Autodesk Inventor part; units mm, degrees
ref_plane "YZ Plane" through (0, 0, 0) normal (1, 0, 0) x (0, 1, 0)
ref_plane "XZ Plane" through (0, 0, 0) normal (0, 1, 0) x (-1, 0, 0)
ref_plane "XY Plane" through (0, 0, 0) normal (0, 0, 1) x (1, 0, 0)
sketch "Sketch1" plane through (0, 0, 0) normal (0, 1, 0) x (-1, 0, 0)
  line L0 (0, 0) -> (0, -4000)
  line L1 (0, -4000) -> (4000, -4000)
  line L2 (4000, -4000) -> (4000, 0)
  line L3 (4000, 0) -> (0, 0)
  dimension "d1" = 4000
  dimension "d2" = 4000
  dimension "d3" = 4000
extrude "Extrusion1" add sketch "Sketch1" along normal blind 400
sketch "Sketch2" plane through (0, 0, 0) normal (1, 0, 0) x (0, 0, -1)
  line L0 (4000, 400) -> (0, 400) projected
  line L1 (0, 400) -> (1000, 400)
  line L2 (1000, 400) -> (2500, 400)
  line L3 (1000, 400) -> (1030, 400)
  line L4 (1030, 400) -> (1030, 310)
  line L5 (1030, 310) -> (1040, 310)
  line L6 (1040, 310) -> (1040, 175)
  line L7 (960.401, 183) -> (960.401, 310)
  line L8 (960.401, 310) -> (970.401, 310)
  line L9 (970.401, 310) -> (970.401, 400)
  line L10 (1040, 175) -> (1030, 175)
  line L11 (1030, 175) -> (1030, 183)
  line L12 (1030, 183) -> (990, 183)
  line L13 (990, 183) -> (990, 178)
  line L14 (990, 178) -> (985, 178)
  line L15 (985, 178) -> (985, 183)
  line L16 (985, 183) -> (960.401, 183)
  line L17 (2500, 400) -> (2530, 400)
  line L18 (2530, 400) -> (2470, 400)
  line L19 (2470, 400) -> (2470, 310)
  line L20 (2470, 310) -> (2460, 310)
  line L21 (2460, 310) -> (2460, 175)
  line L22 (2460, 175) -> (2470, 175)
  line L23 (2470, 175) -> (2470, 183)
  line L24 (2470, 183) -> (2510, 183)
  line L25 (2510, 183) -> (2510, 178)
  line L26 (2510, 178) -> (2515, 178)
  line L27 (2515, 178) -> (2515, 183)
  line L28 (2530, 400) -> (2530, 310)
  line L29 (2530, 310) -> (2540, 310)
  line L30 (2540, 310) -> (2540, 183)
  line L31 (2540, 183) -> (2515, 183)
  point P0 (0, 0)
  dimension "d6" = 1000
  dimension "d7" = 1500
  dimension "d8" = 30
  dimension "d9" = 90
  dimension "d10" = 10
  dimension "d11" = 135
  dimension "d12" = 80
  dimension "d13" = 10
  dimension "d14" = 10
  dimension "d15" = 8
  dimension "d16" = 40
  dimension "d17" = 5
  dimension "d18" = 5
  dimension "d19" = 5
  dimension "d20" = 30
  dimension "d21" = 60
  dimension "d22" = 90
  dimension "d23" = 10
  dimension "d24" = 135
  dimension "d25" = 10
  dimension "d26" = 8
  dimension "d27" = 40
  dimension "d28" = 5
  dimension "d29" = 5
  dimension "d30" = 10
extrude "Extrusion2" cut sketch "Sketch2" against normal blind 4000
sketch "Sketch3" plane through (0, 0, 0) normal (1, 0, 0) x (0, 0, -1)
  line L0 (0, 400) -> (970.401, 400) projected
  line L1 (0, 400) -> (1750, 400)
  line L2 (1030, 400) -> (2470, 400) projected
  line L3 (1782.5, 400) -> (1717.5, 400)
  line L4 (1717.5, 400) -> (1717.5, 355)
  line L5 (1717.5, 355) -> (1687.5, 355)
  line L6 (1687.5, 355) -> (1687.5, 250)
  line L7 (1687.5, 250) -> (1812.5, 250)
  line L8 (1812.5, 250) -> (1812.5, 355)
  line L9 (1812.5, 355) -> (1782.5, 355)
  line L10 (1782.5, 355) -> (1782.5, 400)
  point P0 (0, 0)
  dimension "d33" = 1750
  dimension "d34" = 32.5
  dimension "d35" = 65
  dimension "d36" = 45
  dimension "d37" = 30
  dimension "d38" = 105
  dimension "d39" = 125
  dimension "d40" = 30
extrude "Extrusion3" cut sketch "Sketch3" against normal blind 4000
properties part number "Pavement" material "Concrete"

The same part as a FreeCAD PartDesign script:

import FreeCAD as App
import Part
import Sketcher

doc = App.newDocument("Part")
body = doc.addObject("PartDesign::Body", "Body")

sketch1 = body.newObject("Sketcher::SketchObject", "Sketch")
sketch1.AttachmentSupport = (doc.getObject("XZ_Plane"), [""])
sketch1.MapMode = "FlatFace"
sketch1.addGeometry(Part.LineSegment(App.Vector(-4000, 0, 0), App.Vector(0, 0, 0)), False)
sketch1.addGeometry(Part.LineSegment(App.Vector(0, 0, 0), App.Vector(0, -4000, 0)), False)
sketch1.addGeometry(Part.LineSegment(App.Vector(0, -4000, 0), App.Vector(-4000, -4000, 0)), False)
sketch1.addGeometry(Part.LineSegment(App.Vector(-4000, -4000, 0), App.Vector(-4000, 0, 0)), False)
sketch1.addConstraint(Sketcher.Constraint("Coincident", 0, 2, 1, 1))
sketch1.addConstraint(Sketcher.Constraint("Coincident", 1, 2, 2, 1))
sketch1.addConstraint(Sketcher.Constraint("Coincident", 2, 2, 3, 1))
sketch1.addConstraint(Sketcher.Constraint("Coincident", 3, 2, 0, 1))
sketch1.addConstraint(Sketcher.Constraint("Horizontal", 0))
sketch1.addConstraint(Sketcher.Constraint("Vertical", 1))
sketch1.addConstraint(Sketcher.Constraint("Horizontal", 2))
sketch1.addConstraint(Sketcher.Constraint("Vertical", 3))
sketch1.addConstraint(Sketcher.Constraint("Coincident", 0, 2, -1, 1))
sketch1.addConstraint(Sketcher.Constraint("Equal", 2, 1))
sketch1.addConstraint(Sketcher.Constraint("DistanceX", 0, 1, 0, 2, 4000.0))
pad1 = body.newObject("PartDesign::Pad", "Pad")
pad1.Profile = sketch1
pad1.Length = 400
pad1.Reversed = True

sketch2 = body.newObject("Sketcher::SketchObject", "Sketch001")
sketch2.AttachmentSupport = (doc.getObject("YZ_Plane"), [""])
sketch2.MapMode = "FlatFace"
sketch2.addGeometry(Part.LineSegment(App.Vector(310, -2530, 0), App.Vector(400, -2530, 0)), False)
sketch2.addGeometry(Part.LineSegment(App.Vector(400, -2530, 0), App.Vector(400, -2470, 0)), False)
sketch2.addGeometry(Part.LineSegment(App.Vector(400, -2470, 0), App.Vector(310, -2470, 0)), False)
sketch2.addGeometry(Part.LineSegment(App.Vector(310, -2470, 0), App.Vector(310, -2460, 0)), False)
sketch2.addGeometry(Part.LineSegment(App.Vector(310, -2460, 0), App.Vector(175, -2460, 0)), False)
sketch2.addGeometry(Part.LineSegment(App.Vector(175, -2460, 0), App.Vector(175, -2470, 0)), False)
sketch2.addGeometry(Part.LineSegment(App.Vector(175, -2470, 0), App.Vector(183, -2470, 0)), False)
sketch2.addGeometry(Part.LineSegment(App.Vector(183, -2470, 0), App.Vector(183, -2510, 0)), False)
sketch2.addGeometry(Part.LineSegment(App.Vector(183, -2510, 0), App.Vector(178, -2510, 0)), False)
sketch2.addGeometry(Part.LineSegment(App.Vector(178, -2510, 0), App.Vector(178, -2515, 0)), False)
sketch2.addGeometry(Part.LineSegment(App.Vector(178, -2515, 0), App.Vector(183, -2515, 0)), False)
sketch2.addGeometry(Part.LineSegment(App.Vector(183, -2515, 0), App.Vector(183, -2540, 0)), False)
sketch2.addGeometry(Part.LineSegment(App.Vector(183, -2540, 0), App.Vector(310, -2540, 0)), False)
sketch2.addGeometry(Part.LineSegment(App.Vector(310, -2540, 0), App.Vector(310, -2530, 0)), False)
sketch2.addGeometry(Part.LineSegment(App.Vector(310, -1030, 0), App.Vector(400, -1030, 0)), False)
sketch2.addGeometry(Part.LineSegment(App.Vector(400, -1030, 0), App.Vector(400, -970, 0)), False)
sketch2.addGeometry(Part.LineSegment(App.Vector(400, -970, 0), App.Vector(310, -970, 0)), False)
sketch2.addGeometry(Part.LineSegment(App.Vector(310, -970, 0), App.Vector(310, -960, 0)), False)
sketch2.addGeometry(Part.LineSegment(App.Vector(310, -960, 0), App.Vector(183, -960, 0)), False)
sketch2.addGeometry(Part.LineSegment(App.Vector(183, -960, 0), App.Vector(183, -985, 0)), False)
sketch2.addGeometry(Part.LineSegment(App.Vector(183, -985, 0), App.Vector(178, -985, 0)), False)
sketch2.addGeometry(Part.LineSegment(App.Vector(178, -985, 0), App.Vector(178, -990, 0)), False)
sketch2.addGeometry(Part.LineSegment(App.Vector(178, -990, 0), App.Vector(183, -990, 0)), False)
sketch2.addGeometry(Part.LineSegment(App.Vector(183, -990, 0), App.Vector(183, -1030, 0)), False)
sketch2.addGeometry(Part.LineSegment(App.Vector(183, -1030, 0), App.Vector(175, -1030, 0)), False)
sketch2.addGeometry(Part.LineSegment(App.Vector(175, -1030, 0), App.Vector(175, -1040, 0)), False)
sketch2.addGeometry(Part.LineSegment(App.Vector(175, -1040, 0), App.Vector(310, -1040, 0)), False)
sketch2.addGeometry(Part.LineSegment(App.Vector(310, -1040, 0), App.Vector(310, -1030, 0)), False)
sketch2.addConstraint(Sketcher.Constraint("Coincident", 0, 2, 1, 1))
sketch2.addConstraint(Sketcher.Constraint("Coincident", 1, 2, 2, 1))
sketch2.addConstraint(Sketcher.Constraint("Coincident", 2, 2, 3, 1))
sketch2.addConstraint(Sketcher.Constraint("Coincident", 3, 2, 4, 1))
sketch2.addConstraint(Sketcher.Constraint("Coincident", 4, 2, 5, 1))
sketch2.addConstraint(Sketcher.Constraint("Coincident", 5, 2, 6, 1))
sketch2.addConstraint(Sketcher.Constraint("Coincident", 6, 2, 7, 1))
sketch2.addConstraint(Sketcher.Constraint("Coincident", 7, 2, 8, 1))
sketch2.addConstraint(Sketcher.Constraint("Coincident", 8, 2, 9, 1))
sketch2.addConstraint(Sketcher.Constraint("Coincident", 9, 2, 10, 1))
sketch2.addConstraint(Sketcher.Constraint("Coincident", 10, 2, 11, 1))
sketch2.addConstraint(Sketcher.Constraint("Coincident", 11, 2, 12, 1))
sketch2.addConstraint(Sketcher.Constraint("Coincident", 12, 2, 13, 1))
sketch2.addConstraint(Sketcher.Constraint("Coincident", 13, 2, 0, 1))
sketch2.addConstraint(Sketcher.Constraint("Coincident", 14, 2, 15, 1))
sketch2.addConstraint(Sketcher.Constraint("Coincident", 15, 2, 16, 1))
sketch2.addConstraint(Sketcher.Constraint("Coincident", 16, 2, 17, 1))
sketch2.addConstraint(Sketcher.Constraint("Coincident", 17, 2, 18, 1))
sketch2.addConstraint(Sketcher.Constraint("Coincident", 18, 2, 19, 1))
sketch2.addConstraint(Sketcher.Constraint("Coincident", 19, 2, 20, 1))
sketch2.addConstraint(Sketcher.Constraint("Coincident", 20, 2, 21, 1))
sketch2.addConstraint(Sketcher.Constraint("Coincident", 21, 2, 22, 1))
sketch2.addConstraint(Sketcher.Constraint("Coincident", 22, 2, 23, 1))
sketch2.addConstraint(Sketcher.Constraint("Coincident", 23, 2, 24, 1))
sketch2.addConstraint(Sketcher.Constraint("Coincident", 24, 2, 25, 1))
sketch2.addConstraint(Sketcher.Constraint("Coincident", 25, 2, 26, 1))
sketch2.addConstraint(Sketcher.Constraint("Coincident", 26, 2, 27, 1))
sketch2.addConstraint(Sketcher.Constraint("Coincident", 27, 2, 14, 1))
sketch2.addConstraint(Sketcher.Constraint("Horizontal", 0))
sketch2.addConstraint(Sketcher.Constraint("Vertical", 1))
sketch2.addConstraint(Sketcher.Constraint("Horizontal", 2))
sketch2.addConstraint(Sketcher.Constraint("Vertical", 3))
sketch2.addConstraint(Sketcher.Constraint("Horizontal", 4))
sketch2.addConstraint(Sketcher.Constraint("Vertical", 5))
sketch2.addConstraint(Sketcher.Constraint("Horizontal", 6))
sketch2.addConstraint(Sketcher.Constraint("Vertical", 7))
sketch2.addConstraint(Sketcher.Constraint("Horizontal", 8))
sketch2.addConstraint(Sketcher.Constraint("Vertical", 9))
sketch2.addConstraint(Sketcher.Constraint("Horizontal", 10))
sketch2.addConstraint(Sketcher.Constraint("Vertical", 11))
sketch2.addConstraint(Sketcher.Constraint("Horizontal", 12))
sketch2.addConstraint(Sketcher.Constraint("Vertical", 13))
sketch2.addConstraint(Sketcher.Constraint("Horizontal", 14))
sketch2.addConstraint(Sketcher.Constraint("Vertical", 15))
sketch2.addConstraint(Sketcher.Constraint("Horizontal", 16))
sketch2.addConstraint(Sketcher.Constraint("Vertical", 17))
sketch2.addConstraint(Sketcher.Constraint("Horizontal", 18))
sketch2.addConstraint(Sketcher.Constraint("Vertical", 19))
sketch2.addConstraint(Sketcher.Constraint("Horizontal", 20))
sketch2.addConstraint(Sketcher.Constraint("Vertical", 21))
sketch2.addConstraint(Sketcher.Constraint("Horizontal", 22))
sketch2.addConstraint(Sketcher.Constraint("Vertical", 23))
sketch2.addConstraint(Sketcher.Constraint("Horizontal", 24))
sketch2.addConstraint(Sketcher.Constraint("Vertical", 25))
sketch2.addConstraint(Sketcher.Constraint("Horizontal", 26))
sketch2.addConstraint(Sketcher.Constraint("Vertical", 27))
sketch2.addConstraint(Sketcher.Constraint("Horizontal", 2, 2, 5, 2))
sketch2.addConstraint(Sketcher.Constraint("Horizontal", 14, 2, 23, 2))
sketch2.addConstraint(Sketcher.Constraint("Vertical", 7, 2, 10, 2))
sketch2.addConstraint(Sketcher.Constraint("Vertical", 3, 2, 12, 2))
sketch2.addConstraint(Sketcher.Constraint("Vertical", 1, 2, 14, 2))
sketch2.addConstraint(Sketcher.Constraint("Vertical", 13, 2, 16, 2))
sketch2.addConstraint(Sketcher.Constraint("Vertical", 11, 2, 18, 2))
sketch2.addConstraint(Sketcher.Constraint("Vertical", 9, 2, 20, 2))
sketch2.addConstraint(Sketcher.Constraint("Vertical", 19, 2, 22, 2))
sketch2.addConstraint(Sketcher.Constraint("Vertical", 5, 2, 24, 2))
sketch2.addConstraint(Sketcher.Constraint("Vertical", 17, 2, 26, 2))
sketch2.addConstraint(Sketcher.Constraint("Equal", 22, 9))
sketch2.addConstraint(Sketcher.Constraint("Equal", 5, 13))
sketch2.addConstraint(Sketcher.Constraint("Equal", 13, 17))
sketch2.addConstraint(Sketcher.Constraint("Equal", 9, 21))
sketch2.addConstraint(Sketcher.Constraint("Equal", 7, 23))
sketch2.addConstraint(Sketcher.Constraint("Equal", 17, 25))
sketch2.addConstraint(Sketcher.Constraint("DistanceX", 0, 1, 0, 2, 90.0))
sketch2.addConstraint(Sketcher.Constraint("DistanceX", 4, 2, 4, 1, 135.0))
sketch2.addConstraint(Sketcher.Constraint("DistanceX", 6, 1, 6, 2, 8.0))
sketch2.addConstraint(Sketcher.Constraint("DistanceX", 8, 2, 8, 1, 5.0))
sketch2.addConstraint(Sketcher.Constraint("DistanceY", 1, 1, 1, 2, 60.0))
sketch2.addConstraint(Sketcher.Constraint("DistanceY", 3, 1, 3, 2, 10.0))
sketch2.addConstraint(Sketcher.Constraint("DistanceY", 7, 2, 7, 1, 40.0))
sketch2.addConstraint(Sketcher.Constraint("DistanceX", -1, 1, 0, 2, 400.0))
sketch2.addConstraint(Sketcher.Constraint("DistanceY", 0, 2, -1, 1, 2530.0))
sketch2.addConstraint(Sketcher.Constraint("DistanceY", 14, 2, -1, 1, 1030.0))
sketch2.addConstraint(Sketcher.Constraint("DistanceY", 15, 1, 15, 2, 59.599))
pocket1 = body.newObject("PartDesign::Pocket", "Pocket")
pocket1.Profile = sketch2
pocket1.Length = 4000

sketch3 = body.newObject("Sketcher::SketchObject", "Sketch002")
sketch3.AttachmentSupport = (doc.getObject("YZ_Plane"), [""])
sketch3.MapMode = "FlatFace"
sketch3.addGeometry(Part.LineSegment(App.Vector(400, -1782, 0), App.Vector(400, -1718, 0)), False)
sketch3.addGeometry(Part.LineSegment(App.Vector(400, -1718, 0), App.Vector(355, -1718, 0)), False)
sketch3.addGeometry(Part.LineSegment(App.Vector(355, -1718, 0), App.Vector(355, -1688, 0)), False)
sketch3.addGeometry(Part.LineSegment(App.Vector(355, -1688, 0), App.Vector(250, -1688, 0)), False)
sketch3.addGeometry(Part.LineSegment(App.Vector(250, -1688, 0), App.Vector(250, -1812, 0)), False)
sketch3.addGeometry(Part.LineSegment(App.Vector(250, -1812, 0), App.Vector(355, -1812, 0)), False)
sketch3.addGeometry(Part.LineSegment(App.Vector(355, -1812, 0), App.Vector(355, -1782, 0)), False)
sketch3.addGeometry(Part.LineSegment(App.Vector(355, -1782, 0), App.Vector(400, -1782, 0)), False)
sketch3.addConstraint(Sketcher.Constraint("Coincident", 0, 2, 1, 1))
sketch3.addConstraint(Sketcher.Constraint("Coincident", 1, 2, 2, 1))
sketch3.addConstraint(Sketcher.Constraint("Coincident", 2, 2, 3, 1))
sketch3.addConstraint(Sketcher.Constraint("Coincident", 3, 2, 4, 1))
sketch3.addConstraint(Sketcher.Constraint("Coincident", 4, 2, 5, 1))
sketch3.addConstraint(Sketcher.Constraint("Coincident", 5, 2, 6, 1))
sketch3.addConstraint(Sketcher.Constraint("Coincident", 6, 2, 7, 1))
sketch3.addConstraint(Sketcher.Constraint("Coincident", 7, 2, 0, 1))
sketch3.addConstraint(Sketcher.Constraint("Vertical", 0))
sketch3.addConstraint(Sketcher.Constraint("Horizontal", 1))
sketch3.addConstraint(Sketcher.Constraint("Vertical", 2))
sketch3.addConstraint(Sketcher.Constraint("Horizontal", 3))
sketch3.addConstraint(Sketcher.Constraint("Vertical", 4))
sketch3.addConstraint(Sketcher.Constraint("Horizontal", 5))
sketch3.addConstraint(Sketcher.Constraint("Vertical", 6))
sketch3.addConstraint(Sketcher.Constraint("Horizontal", 7))
sketch3.addConstraint(Sketcher.Constraint("Vertical", 2, 2, 5, 2))
sketch3.addConstraint(Sketcher.Constraint("Equal", 2, 6))
sketch3.addConstraint(Sketcher.Constraint("DistanceX", 1, 2, 1, 1, 45.0))
sketch3.addConstraint(Sketcher.Constraint("DistanceX", 3, 2, 3, 1, 105.0))
sketch3.addConstraint(Sketcher.Constraint("DistanceY", 0, 1, 0, 2, 65.0))
sketch3.addConstraint(Sketcher.Constraint("DistanceY", 2, 1, 2, 2, 30.0))
sketch3.addConstraint(Sketcher.Constraint("DistanceX", -1, 1, 0, 2, 400.0))
sketch3.addConstraint(Sketcher.Constraint("DistanceY", 0, 2, -1, 1, 1717.5))
pocket2 = body.newObject("PartDesign::Pocket", "Pocket001")
pocket2.Profile = sketch3
pocket2.Length = 4000

doc.recompute()
